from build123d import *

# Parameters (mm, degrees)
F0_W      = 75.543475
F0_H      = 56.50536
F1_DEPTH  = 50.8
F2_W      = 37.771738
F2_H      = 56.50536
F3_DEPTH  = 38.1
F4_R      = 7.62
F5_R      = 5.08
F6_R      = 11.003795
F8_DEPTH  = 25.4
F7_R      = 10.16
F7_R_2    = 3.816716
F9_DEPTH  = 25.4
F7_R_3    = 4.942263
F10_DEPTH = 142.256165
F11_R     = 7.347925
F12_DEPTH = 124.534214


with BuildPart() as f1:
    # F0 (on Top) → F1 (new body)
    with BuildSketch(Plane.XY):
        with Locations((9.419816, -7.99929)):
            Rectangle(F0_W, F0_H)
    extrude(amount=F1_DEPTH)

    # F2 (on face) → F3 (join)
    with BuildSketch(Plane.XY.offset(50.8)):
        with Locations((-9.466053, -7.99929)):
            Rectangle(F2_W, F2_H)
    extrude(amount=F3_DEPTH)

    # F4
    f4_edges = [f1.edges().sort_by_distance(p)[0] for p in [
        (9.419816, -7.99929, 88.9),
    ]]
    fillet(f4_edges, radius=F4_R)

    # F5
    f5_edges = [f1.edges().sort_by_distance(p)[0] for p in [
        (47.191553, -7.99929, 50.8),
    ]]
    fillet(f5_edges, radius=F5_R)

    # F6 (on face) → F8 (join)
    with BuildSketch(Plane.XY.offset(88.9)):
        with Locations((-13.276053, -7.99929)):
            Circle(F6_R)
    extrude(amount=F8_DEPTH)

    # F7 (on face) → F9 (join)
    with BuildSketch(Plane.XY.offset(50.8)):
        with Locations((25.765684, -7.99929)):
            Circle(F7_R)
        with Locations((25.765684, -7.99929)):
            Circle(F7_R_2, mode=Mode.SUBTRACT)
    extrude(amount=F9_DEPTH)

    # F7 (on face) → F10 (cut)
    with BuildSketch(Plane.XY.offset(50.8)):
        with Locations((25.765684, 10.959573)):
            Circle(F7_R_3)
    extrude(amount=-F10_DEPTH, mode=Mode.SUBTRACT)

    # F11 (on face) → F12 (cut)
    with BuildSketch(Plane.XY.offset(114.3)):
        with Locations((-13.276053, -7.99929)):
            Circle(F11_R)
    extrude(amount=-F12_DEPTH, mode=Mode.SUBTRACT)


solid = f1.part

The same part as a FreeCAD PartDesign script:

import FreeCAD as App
import Part
import Sketcher
Q = App.Units.Quantity


def edges_at(feature, points):
    """Names of the edges that pass closest to the given points."""
    edges = feature.Shape.Edges
    near = lambda p: min(range(len(edges)), key=lambda i: edges[i].distToShape(Part.Vertex(*p))[0])
    return sorted({f"Edge{near(p) + 1}" for p in points})

doc = App.newDocument("Part")
params = doc.addObject("Spreadsheet::Sheet", "Params")
for row, (alias, value) in enumerate([
    ("pad1_length", "2 in"),
    ("pad2_length", "1.5 in"),
    ("fillet_radius", "0.3 in"),
    ("fillet2_radius", "0.2 in"),
    ("pad3_length", "1 in"),
    ("sketch4_diameter", "0.8 in"),
    ("pad4_length", "1 in"),
    ("pocket1_length", "142.256165 mm"),
    ("pocket2_length", "124.534214 mm"),
], start=1):
    params.set(f"A{row}", alias)
    params.set(f"B{row}", "=" + value)
    params.setAlias(f"B{row}", alias)

body = doc.addObject("PartDesign::Body", "Body")

# Sketch on XY plane
sketch1 = doc.addObject("Sketcher::SketchObject", "Sketch")
body.addObject(sketch1)
sketch1.AttachmentSupport = (doc.XY_Plane, [""])
sketch1.MapMode = "FlatFace"
sketch1.addGeometry(Part.LineSegment(App.Vector(-28.351921, 20.25339, 0), App.Vector(-28.351921, -36.25197, 0)), False)
sketch1.addGeometry(Part.LineSegment(App.Vector(-28.351921, -36.25197, 0), App.Vector(47.191553, -36.25197, 0)), False)
sketch1.addGeometry(Part.LineSegment(App.Vector(47.191553, -36.25197, 0), App.Vector(47.191553, 20.25339, 0)), False)
sketch1.addGeometry(Part.LineSegment(App.Vector(47.191553, 20.25339, 0), App.Vector(-28.351921, 20.25339, 0)), False)
sketch1.addConstraint(Sketcher.Constraint("Coincident", 0, 2, 1, 1))
sketch1.addConstraint(Sketcher.Constraint("Coincident", 1, 2, 2, 1))
sketch1.addConstraint(Sketcher.Constraint("Coincident", 2, 2, 3, 1))
sketch1.addConstraint(Sketcher.Constraint("Coincident", 3, 2, 0, 1))
sketch1.addConstraint(Sketcher.Constraint("Vertical", 0))
sketch1.addConstraint(Sketcher.Constraint("Horizontal", 1))
sketch1.addConstraint(Sketcher.Constraint("Vertical", 2))
sketch1.addConstraint(Sketcher.Constraint("Horizontal", 3))
sketch1.addConstraint(Sketcher.Constraint("DistanceY", 0, 2, 0, 1, 56.50536))
sketch1.addConstraint(Sketcher.Constraint("DistanceX", 1, 1, 1, 2, 75.543475))
sketch1.addConstraint(Sketcher.Constraint("DistanceX", 0, 2, -1, 1, 28.351921))
sketch1.addConstraint(Sketcher.Constraint("DistanceY", 0, 2, -1, 1, 36.25197))
pad1 = doc.addObject("PartDesign::Pad", "Pad")
body.addObject(pad1)
pad1.Profile = sketch1
pad1.setExpression("Length", "Params.pad1_length")

# Sketch on XY plane
sketch2 = doc.addObject("Sketcher::SketchObject", "Sketch001")
body.addObject(sketch2)
sketch2.AttachmentSupport = (doc.XY_Plane, [""])
sketch2.MapMode = "FlatFace"
sketch2.AttachmentOffset = App.Placement(App.Vector(0, 0, 2 * 25.4), App.Rotation())
sketch2.addGeometry(Part.LineSegment(App.Vector(-28.351922, 20.25339, 0), App.Vector(-28.351922, -36.25197, 0)), False)
sketch2.addGeometry(Part.LineSegment(App.Vector(-28.351922, -36.25197, 0), App.Vector(9.419816, -36.25197, 0)), False)
sketch2.addGeometry(Part.LineSegment(App.Vector(9.419816, -36.25197, 0), App.Vector(9.419816, 20.25339, 0)), False)
sketch2.addGeometry(Part.LineSegment(App.Vector(9.419816, 20.25339, 0), App.Vector(-28.351922, 20.25339, 0)), False)
sketch2.addConstraint(Sketcher.Constraint("Coincident", 0, 2, 1, 1))
sketch2.addConstraint(Sketcher.Constraint("Coincident", 1, 2, 2, 1))
sketch2.addConstraint(Sketcher.Constraint("Coincident", 2, 2, 3, 1))
sketch2.addConstraint(Sketcher.Constraint("Coincident", 3, 2, 0, 1))
sketch2.addConstraint(Sketcher.Constraint("Vertical", 0))
sketch2.addConstraint(Sketcher.Constraint("Horizontal", 1))
sketch2.addConstraint(Sketcher.Constraint("Vertical", 2))
sketch2.addConstraint(Sketcher.Constraint("Horizontal", 3))
sketch2.addConstraint(Sketcher.Constraint("DistanceY", 0, 2, 0, 1, 56.50536))
sketch2.addConstraint(Sketcher.Constraint("DistanceX", 1, 1, 1, 2, 37.771738))
sketch2.addConstraint(Sketcher.Constraint("DistanceX", 0, 2, -1, 1, 28.351922))
sketch2.addConstraint(Sketcher.Constraint("DistanceY", 0, 2, -1, 1, 36.25197))
pad2 = doc.addObject("PartDesign::Pad", "Pad001")
body.addObject(pad2)
pad2.Profile = sketch2
pad2.setExpression("Length", "Params.pad2_length")
doc.recompute()

fillet = doc.addObject("PartDesign::Fillet", "Fillet")
body.addObject(fillet)
fillet.Base = (pad2, edges_at(pad2, [(9.42, -7.999, 88.9)]))
fillet.setExpression("Radius", "Params.fillet_radius")
doc.recompute()

fillet2 = doc.addObject("PartDesign::Fillet", "Fillet001")
body.addObject(fillet2)
fillet2.Base = (fillet, edges_at(fillet, [(47.192, -7.999, 50.8)]))
fillet2.setExpression("Radius", "Params.fillet2_radius")

# Sketch on XY plane
sketch3 = doc.addObject("Sketcher::SketchObject", "Sketch002")
body.addObject(sketch3)
sketch3.AttachmentSupport = (doc.XY_Plane, [""])
sketch3.MapMode = "FlatFace"
sketch3.AttachmentOffset = App.Placement(App.Vector(0, 0, 3.5 * 25.4), App.Rotation())
sketch3.addGeometry(Part.Circle(App.Vector(-13.276053, -7.99929, 0), App.Vector(0, 0, 1), 11.003795), False)
sketch3.addConstraint(Sketcher.Constraint("Diameter", 0, 22.00759))
sketch3.addConstraint(Sketcher.Constraint("DistanceY", 0, 3, -1, 1, 7.99929))
sketch3.addConstraint(Sketcher.Constraint("DistanceX", 0, 3, -1, 1, 13.276053))
pad3 = doc.addObject("PartDesign::Pad", "Pad002")
body.addObject(pad3)
pad3.Profile = sketch3
pad3.setExpression("Length", "Params.pad3_length")

# Sketch on XY plane
sketch4 = doc.addObject("Sketcher::SketchObject", "Sketch003")
body.addObject(sketch4)
sketch4.AttachmentSupport = (doc.XY_Plane, [""])
sketch4.MapMode = "FlatFace"
sketch4.AttachmentOffset = App.Placement(App.Vector(0, 0, 2 * 25.4), App.Rotation())
sketch4.addGeometry(Part.Circle(App.Vector(25.765684, -7.99929, 0), App.Vector(0, 0, 1), 10.16), False)
sketch4.addGeometry(Part.Circle(App.Vector(25.765684, -7.99929, 0), App.Vector(0, 0, 1), 3.816716), False)
sketch4.addConstraint(Sketcher.Constraint("Coincident", 1, 3, 0, 3))
sketch4.addConstraint(Sketcher.Constraint("Diameter", 0, Q("0.8 in")))
sketch4.addConstraint(Sketcher.Constraint("Diameter", 1, 7.633432))
sketch4.addConstraint(Sketcher.Constraint("DistanceY", 0, 3, -1, 1, 7.99929))
sketch4.addConstraint(Sketcher.Constraint("DistanceX", -1, 1, 0, 3, 25.765684))
sketch4.setExpression("Constraints[1]", "Params.sketch4_diameter")
pad4 = doc.addObject("PartDesign::Pad", "Pad003")
body.addObject(pad4)
pad4.Profile = sketch4
pad4.setExpression("Length", "Params.pad4_length")

# Sketch on XY plane
sketch5 = doc.addObject("Sketcher::SketchObject", "Sketch004")
body.addObject(sketch5)
sketch5.AttachmentSupport = (doc.XY_Plane, [""])
sketch5.MapMode = "FlatFace"
sketch5.AttachmentOffset = App.Placement(App.Vector(0, 0, 2 * 25.4), App.Rotation())
sketch5.addGeometry(Part.Circle(App.Vector(25.765684, 10.959573, 0), App.Vector(0, 0, 1), 4.942263), False)
sketch5.addConstraint(Sketcher.Constraint("Diameter", 0, 9.884526))
sketch5.addConstraint(Sketcher.Constraint("DistanceX", -1, 1, 0, 3, 25.765684))
sketch5.addConstraint(Sketcher.Constraint("DistanceY", -1, 1, 0, 3, 10.959573))
pocket1 = doc.addObject("PartDesign::Pocket", "Pocket")
body.addObject(pocket1)
pocket1.Profile = sketch5
pocket1.setExpression("Length", "Params.pocket1_length")

# Sketch on XY plane
sketch6 = doc.addObject("Sketcher::SketchObject", "Sketch005")
body.addObject(sketch6)
sketch6.AttachmentSupport = (doc.XY_Plane, [""])
sketch6.MapMode = "FlatFace"
sketch6.AttachmentOffset = App.Placement(App.Vector(0, 0, 4.5 * 25.4), App.Rotation())
sketch6.addGeometry(Part.Circle(App.Vector(-13.276053, -7.99929, 0), App.Vector(0, 0, 1), 7.347925), False)
sketch6.addConstraint(Sketcher.Constraint("Diameter", 0, 14.69585))
sketch6.addConstraint(Sketcher.Constraint("DistanceY", 0, 3, -1, 1, 7.99929))
sketch6.addConstraint(Sketcher.Constraint("DistanceX", 0, 3, -1, 1, 13.276053))
pocket2 = doc.addObject("PartDesign::Pocket", "Pocket001")
body.addObject(pocket2)
pocket2.Profile = sketch6
pocket2.setExpression("Length", "Params.pocket2_length")

doc.recompute()
